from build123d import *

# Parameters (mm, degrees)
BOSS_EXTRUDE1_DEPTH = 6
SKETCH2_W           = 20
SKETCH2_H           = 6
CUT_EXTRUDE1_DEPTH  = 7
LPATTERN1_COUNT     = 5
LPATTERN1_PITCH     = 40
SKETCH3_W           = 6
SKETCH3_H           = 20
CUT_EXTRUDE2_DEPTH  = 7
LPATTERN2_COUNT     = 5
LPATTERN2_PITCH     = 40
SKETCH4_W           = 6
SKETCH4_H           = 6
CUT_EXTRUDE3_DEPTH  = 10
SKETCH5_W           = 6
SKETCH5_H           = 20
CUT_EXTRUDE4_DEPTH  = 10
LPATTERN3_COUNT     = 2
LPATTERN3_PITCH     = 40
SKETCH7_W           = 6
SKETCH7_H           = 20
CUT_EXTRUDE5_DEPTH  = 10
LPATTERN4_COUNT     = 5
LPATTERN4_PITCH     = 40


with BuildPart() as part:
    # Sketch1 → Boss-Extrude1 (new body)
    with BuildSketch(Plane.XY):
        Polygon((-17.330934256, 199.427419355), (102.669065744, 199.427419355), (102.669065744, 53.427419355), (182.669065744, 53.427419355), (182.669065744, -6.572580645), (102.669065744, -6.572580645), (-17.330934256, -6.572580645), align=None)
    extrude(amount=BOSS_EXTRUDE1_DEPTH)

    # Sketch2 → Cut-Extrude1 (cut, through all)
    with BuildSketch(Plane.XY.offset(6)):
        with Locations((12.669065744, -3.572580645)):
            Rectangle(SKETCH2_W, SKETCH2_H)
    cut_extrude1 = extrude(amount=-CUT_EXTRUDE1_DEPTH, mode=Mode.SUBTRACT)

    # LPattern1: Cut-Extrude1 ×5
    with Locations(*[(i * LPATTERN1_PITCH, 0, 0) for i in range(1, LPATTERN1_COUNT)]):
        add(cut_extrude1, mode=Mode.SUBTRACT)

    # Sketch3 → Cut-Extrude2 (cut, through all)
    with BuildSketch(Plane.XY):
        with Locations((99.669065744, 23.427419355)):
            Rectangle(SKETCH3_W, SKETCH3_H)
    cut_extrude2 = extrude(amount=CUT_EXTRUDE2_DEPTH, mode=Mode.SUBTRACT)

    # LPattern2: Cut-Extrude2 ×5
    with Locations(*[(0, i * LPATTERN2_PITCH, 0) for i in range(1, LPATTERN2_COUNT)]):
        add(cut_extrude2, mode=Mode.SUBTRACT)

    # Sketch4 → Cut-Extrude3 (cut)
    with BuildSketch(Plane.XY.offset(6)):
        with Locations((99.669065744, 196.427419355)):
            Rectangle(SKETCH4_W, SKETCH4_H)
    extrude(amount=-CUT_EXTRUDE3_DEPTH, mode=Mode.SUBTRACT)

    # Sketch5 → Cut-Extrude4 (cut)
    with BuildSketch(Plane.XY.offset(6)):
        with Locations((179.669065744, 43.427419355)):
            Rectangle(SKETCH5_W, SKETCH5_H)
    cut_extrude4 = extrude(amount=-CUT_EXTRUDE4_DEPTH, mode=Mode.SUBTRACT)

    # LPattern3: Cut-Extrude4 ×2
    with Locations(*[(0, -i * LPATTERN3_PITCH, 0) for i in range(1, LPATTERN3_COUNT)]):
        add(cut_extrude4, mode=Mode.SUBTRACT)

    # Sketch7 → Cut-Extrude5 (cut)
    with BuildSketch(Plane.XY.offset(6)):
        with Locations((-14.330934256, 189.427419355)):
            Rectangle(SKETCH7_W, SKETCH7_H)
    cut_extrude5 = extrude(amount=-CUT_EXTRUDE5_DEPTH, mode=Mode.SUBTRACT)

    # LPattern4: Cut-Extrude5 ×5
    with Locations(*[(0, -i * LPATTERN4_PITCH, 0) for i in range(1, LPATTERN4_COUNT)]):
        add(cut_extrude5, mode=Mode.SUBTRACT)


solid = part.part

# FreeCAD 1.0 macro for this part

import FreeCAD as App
import Part
import Sketcher

doc = App.newDocument("Part")
body = doc.addObject("PartDesign::Body", "Body")

sketch1 = doc.addObject("Sketcher::SketchObject", "Sketch")
body.addObject(sketch1)
sketch1.AttachmentSupport = (doc.XY_Plane, [""])
sketch1.MapMode = "FlatFace"
sketch1.addGeometry([
    Part.LineSegment(App.Vector(102.669066, 199.427419, 0), App.Vector(-17.330934, 199.427419, 0)),
    Part.LineSegment(App.Vector(-17.330934, 199.427419, 0), App.Vector(-17.330934, -6.572581, 0)),
    Part.LineSegment(App.Vector(-17.330934, -6.572581, 0), App.Vector(182.669066, -6.572581, 0)),
    Part.LineSegment(App.Vector(182.669066, -6.572581, 0), App.Vector(182.669066, 53.427419, 0)),
    Part.LineSegment(App.Vector(182.669066, 53.427419, 0), App.Vector(102.669066, 53.427419, 0)),
    Part.LineSegment(App.Vector(102.669066, 53.427419, 0), App.Vector(102.669066, 199.427419, 0)),
], False)
sketch1.addConstraint([
    Sketcher.Constraint("Coincident", 0, 2, 1, 1),
    Sketcher.Constraint("Coincident", 1, 2, 2, 1),
    Sketcher.Constraint("Coincident", 2, 2, 3, 1),
    Sketcher.Constraint("Coincident", 3, 2, 4, 1),
    Sketcher.Constraint("Coincident", 4, 2, 5, 1),
    Sketcher.Constraint("Coincident", 5, 2, 0, 1),
    Sketcher.Constraint("Horizontal", 0),
    Sketcher.Constraint("Vertical", 1),
    Sketcher.Constraint("Horizontal", 2),
    Sketcher.Constraint("Vertical", 3),
    Sketcher.Constraint("Horizontal", 4),
    Sketcher.Constraint("Vertical", 5),
    Sketcher.Constraint("DistanceX", 0, 2, 0, 1, 120.0),
    Sketcher.Constraint("DistanceX", 2, 1, 2, 2, 200.0),
    Sketcher.Constraint("DistanceY", 1, 2, 1, 1, 206.0),
    Sketcher.Constraint("DistanceY", 3, 1, 3, 2, 60.0),
    Sketcher.Constraint("DistanceY", -1, 1, 0, 2, 199.427419),
    Sketcher.Constraint("DistanceX", 0, 2, -1, 1, 17.330934),
])
pad1 = doc.addObject("PartDesign::Pad", "Pad")
body.addObject(pad1)
pad1.Profile = sketch1
pad1.Length = 6

sketch2 = doc.addObject("Sketcher::SketchObject", "Sketch001")
body.addObject(sketch2)
sketch2.AttachmentSupport = (doc.XY_Plane, [""])
sketch2.MapMode = "FlatFace"
sketch2.AttachmentOffset = App.Placement(App.Vector(0, 0, 6), App.Rotation())
sketch2.addGeometry([
    Part.LineSegment(App.Vector(2.669066, -0.572581, 0), App.Vector(2.669066, -6.572581, 0)),
    Part.LineSegment(App.Vector(2.669066, -6.572581, 0), App.Vector(22.669066, -6.572581, 0)),
    Part.LineSegment(App.Vector(22.669066, -6.572581, 0), App.Vector(22.669066, -0.572581, 0)),
    Part.LineSegment(App.Vector(22.669066, -0.572581, 0), App.Vector(2.669066, -0.572581, 0)),
], False)
sketch2.addConstraint([
    Sketcher.Constraint("Coincident", 0, 2, 1, 1),
    Sketcher.Constraint("Coincident", 1, 2, 2, 1),
    Sketcher.Constraint("Coincident", 2, 2, 3, 1),
    Sketcher.Constraint("Coincident", 3, 2, 0, 1),
    Sketcher.Constraint("Vertical", 0),
    Sketcher.Constraint("Horizontal", 1),
    Sketcher.Constraint("Vertical", 2),
    Sketcher.Constraint("Horizontal", 3),
    Sketcher.Constraint("DistanceX", 1, 1, 1, 2, 20.0),
    Sketcher.Constraint("DistanceY", 0, 2, 0, 1, 6.0),
    Sketcher.Constraint("DistanceY", 0, 2, -1, 1, 6.572581),
    Sketcher.Constraint("DistanceX", -1, 1, 0, 2, 2.669066),
])
pocket1 = doc.addObject("PartDesign::Pocket", "Pocket")
body.addObject(pocket1)
pocket1.Profile = sketch2
pocket1.Type = "ThroughAll"
doc.recompute()

linearpattern = doc.addObject("PartDesign::LinearPattern", "LinearPattern")
body.addObject(linearpattern)
linearpattern.Originals = [pocket1]
linearpattern.Direction = (doc.X_Axis, [""])
linearpattern.Mode = "offset"
linearpattern.Offset = 40
linearpattern.Occurrences = 5
body.Tip = linearpattern

sketch3 = doc.addObject("Sketcher::SketchObject", "Sketch002")
body.addObject(sketch3)
sketch3.AttachmentSupport = (doc.XY_Plane, [""])
sketch3.MapMode = "FlatFace"
sketch3.addGeometry([
    Part.LineSegment(App.Vector(96.669066, 33.427419, 0), App.Vector(96.669066, 13.427419, 0)),
    Part.LineSegment(App.Vector(96.669066, 13.427419, 0), App.Vector(102.669066, 13.427419, 0)),
    Part.LineSegment(App.Vector(102.669066, 13.427419, 0), App.Vector(102.669066, 33.427419, 0)),
    Part.LineSegment(App.Vector(102.669066, 33.427419, 0), App.Vector(96.669066, 33.427419, 0)),
], False)
sketch3.addConstraint([
    Sketcher.Constraint("Coincident", 0, 2, 1, 1),
    Sketcher.Constraint("Coincident", 1, 2, 2, 1),
    Sketcher.Constraint("Coincident", 2, 2, 3, 1),
    Sketcher.Constraint("Coincident", 3, 2, 0, 1),
    Sketcher.Constraint("Vertical", 0),
    Sketcher.Constraint("Horizontal", 1),
    Sketcher.Constraint("Vertical", 2),
    Sketcher.Constraint("Horizontal", 3),
    Sketcher.Constraint("DistanceX", 1, 1, 1, 2, 6.0),
    Sketcher.Constraint("DistanceY", 0, 2, 0, 1, 20.0),
    Sketcher.Constraint("DistanceY", -1, 1, 0, 2, 13.427419),
    Sketcher.Constraint("DistanceX", -1, 1, 0, 2, 96.669066),
])
pocket2 = doc.addObject("PartDesign::Pocket", "Pocket001")
body.addObject(pocket2)
pocket2.Profile = sketch3
pocket2.Type = "ThroughAll"
pocket2.Reversed = True
doc.recompute()

linearpattern2 = doc.addObject("PartDesign::LinearPattern", "LinearPattern001")
body.addObject(linearpattern2)
linearpattern2.Originals = [pocket2]
linearpattern2.Direction = (doc.Y_Axis, [""])
linearpattern2.Mode = "offset"
linearpattern2.Offset = 40
linearpattern2.Occurrences = 5
body.Tip = linearpattern2

sketch4 = doc.addObject("Sketcher::SketchObject", "Sketch003")
body.addObject(sketch4)
sketch4.AttachmentSupport = (doc.XY_Plane, [""])
sketch4.MapMode = "FlatFace"
sketch4.AttachmentOffset = App.Placement(App.Vector(0, 0, 6), App.Rotation())
sketch4.addGeometry([
    Part.LineSegment(App.Vector(96.669066, 199.427419, 0), App.Vector(96.669066, 193.427419, 0)),
    Part.LineSegment(App.Vector(96.669066, 193.427419, 0), App.Vector(102.669066, 193.427419, 0)),
    Part.LineSegment(App.Vector(102.669066, 193.427419, 0), App.Vector(102.669066, 199.427419, 0)),
    Part.LineSegment(App.Vector(102.669066, 199.427419, 0), App.Vector(96.669066, 199.427419, 0)),
], False)
sketch4.addConstraint([
    Sketcher.Constraint("Coincident", 0, 2, 1, 1),
    Sketcher.Constraint("Coincident", 1, 2, 2, 1),
    Sketcher.Constraint("Coincident", 2, 2, 3, 1),
    Sketcher.Constraint("Coincident", 3, 2, 0, 1),
    Sketcher.Constraint("Vertical", 0),
    Sketcher.Constraint("Horizontal", 1),
    Sketcher.Constraint("Vertical", 2),
    Sketcher.Constraint("Horizontal", 3),
    Sketcher.Constraint("Equal", 3, 0),
    Sketcher.Constraint("DistanceX", 1, 1, 1, 2, 6.0),
    Sketcher.Constraint("DistanceY", -1, 1, 0, 2, 193.427419),
    Sketcher.Constraint("DistanceX", -1, 1, 0, 2, 96.669066),
])
pocket3 = doc.addObject("PartDesign::Pocket", "Pocket002")
body.addObject(pocket3)
pocket3.Profile = sketch4
pocket3.Length = 10

sketch5 = doc.addObject("Sketcher::SketchObject", "Sketch004")
body.addObject(sketch5)
sketch5.AttachmentSupport = (doc.XY_Plane, [""])
sketch5.MapMode = "FlatFace"
sketch5.AttachmentOffset = App.Placement(App.Vector(0, 0, 6), App.Rotation())
sketch5.addGeometry([
    Part.LineSegment(App.Vector(176.669066, 53.427419, 0), App.Vector(176.669066, 33.427419, 0)),
    Part.LineSegment(App.Vector(176.669066, 33.427419, 0), App.Vector(182.669066, 33.427419, 0)),
    Part.LineSegment(App.Vector(182.669066, 33.427419, 0), App.Vector(182.669066, 53.427419, 0)),
    Part.LineSegment(App.Vector(182.669066, 53.427419, 0), App.Vector(176.669066, 53.427419, 0)),
], False)
sketch5.addConstraint([
    Sketcher.Constraint("Coincident", 0, 2, 1, 1),
    Sketcher.Constraint("Coincident", 1, 2, 2, 1),
    Sketcher.Constraint("Coincident", 2, 2, 3, 1),
    Sketcher.Constraint("Coincident", 3, 2, 0, 1),
    Sketcher.Constraint("Vertical", 0),
    Sketcher.Constraint("Horizontal", 1),
    Sketcher.Constraint("Vertical", 2),
    Sketcher.Constraint("Horizontal", 3),
    Sketcher.Constraint("DistanceX", 1, 1, 1, 2, 6.0),
    Sketcher.Constraint("DistanceY", 0, 2, 0, 1, 20.0),
    Sketcher.Constraint("DistanceY", -1, 1, 0, 2, 33.427419),
    Sketcher.Constraint("DistanceX", -1, 1, 0, 2, 176.669066),
])
pocket4 = doc.addObject("PartDesign::Pocket", "Pocket003")
body.addObject(pocket4)
pocket4.Profile = sketch5
pocket4.Length = 10
doc.recompute()

linearpattern3 = doc.addObject("PartDesign::LinearPattern", "LinearPattern002")
body.addObject(linearpattern3)
linearpattern3.Originals = [pocket4]
linearpattern3.Direction = (doc.Y_Axis, [""])
linearpattern3.Mode = "offset"
linearpattern3.Offset = 40
linearpattern3.Occurrences = 2
linearpattern3.Reversed = True
body.Tip = linearpattern3

sketch6 = doc.addObject("Sketcher::SketchObject", "Sketch005")
body.addObject(sketch6)
sketch6.AttachmentSupport = (doc.XY_Plane, [""])
sketch6.MapMode = "FlatFace"
sketch6.AttachmentOffset = App.Placement(App.Vector(0, 0, 6), App.Rotation())
sketch6.addGeometry([
    Part.LineSegment(App.Vector(-17.330934, 199.427419, 0), App.Vector(-17.330934, 179.427419, 0)),
    Part.LineSegment(App.Vector(-17.330934, 179.427419, 0), App.Vector(-11.330934, 179.427419, 0)),
    Part.LineSegment(App.Vector(-11.330934, 179.427419, 0), App.Vector(-11.330934, 199.427419, 0)),
    Part.LineSegment(App.Vector(-11.330934, 199.427419, 0), App.Vector(-17.330934, 199.427419, 0)),
], False)
sketch6.addConstraint([
    Sketcher.Constraint("Coincident", 0, 2, 1, 1),
    Sketcher.Constraint("Coincident", 1, 2, 2, 1),
    Sketcher.Constraint("Coincident", 2, 2, 3, 1),
    Sketcher.Constraint("Coincident", 3, 2, 0, 1),
    Sketcher.Constraint("Vertical", 0),
    Sketcher.Constraint("Horizontal", 1),
    Sketcher.Constraint("Vertical", 2),
    Sketcher.Constraint("Horizontal", 3),
    Sketcher.Constraint("DistanceX", 1, 1, 1, 2, 6.0),
    Sketcher.Constraint("DistanceY", 0, 2, 0, 1, 20.0),
    Sketcher.Constraint("DistanceY", -1, 1, 0, 2, 179.427419),
    Sketcher.Constraint("DistanceX", 0, 2, -1, 1, 17.330934),
])
pocket5 = doc.addObject("PartDesign::Pocket", "Pocket004")
body.addObject(pocket5)
pocket5.Profile = sketch6
pocket5.Length = 10
doc.recompute()

linearpattern4 = doc.addObject("PartDesign::LinearPattern", "LinearPattern003")
body.addObject(linearpattern4)
linearpattern4.Originals = [pocket5]
linearpattern4.Direction = (doc.Y_Axis, [""])
linearpattern4.Mode = "offset"
linearpattern4.Offset = 40
linearpattern4.Occurrences = 5
linearpattern4.Reversed = True
body.Tip = linearpattern4

doc.recompute()
